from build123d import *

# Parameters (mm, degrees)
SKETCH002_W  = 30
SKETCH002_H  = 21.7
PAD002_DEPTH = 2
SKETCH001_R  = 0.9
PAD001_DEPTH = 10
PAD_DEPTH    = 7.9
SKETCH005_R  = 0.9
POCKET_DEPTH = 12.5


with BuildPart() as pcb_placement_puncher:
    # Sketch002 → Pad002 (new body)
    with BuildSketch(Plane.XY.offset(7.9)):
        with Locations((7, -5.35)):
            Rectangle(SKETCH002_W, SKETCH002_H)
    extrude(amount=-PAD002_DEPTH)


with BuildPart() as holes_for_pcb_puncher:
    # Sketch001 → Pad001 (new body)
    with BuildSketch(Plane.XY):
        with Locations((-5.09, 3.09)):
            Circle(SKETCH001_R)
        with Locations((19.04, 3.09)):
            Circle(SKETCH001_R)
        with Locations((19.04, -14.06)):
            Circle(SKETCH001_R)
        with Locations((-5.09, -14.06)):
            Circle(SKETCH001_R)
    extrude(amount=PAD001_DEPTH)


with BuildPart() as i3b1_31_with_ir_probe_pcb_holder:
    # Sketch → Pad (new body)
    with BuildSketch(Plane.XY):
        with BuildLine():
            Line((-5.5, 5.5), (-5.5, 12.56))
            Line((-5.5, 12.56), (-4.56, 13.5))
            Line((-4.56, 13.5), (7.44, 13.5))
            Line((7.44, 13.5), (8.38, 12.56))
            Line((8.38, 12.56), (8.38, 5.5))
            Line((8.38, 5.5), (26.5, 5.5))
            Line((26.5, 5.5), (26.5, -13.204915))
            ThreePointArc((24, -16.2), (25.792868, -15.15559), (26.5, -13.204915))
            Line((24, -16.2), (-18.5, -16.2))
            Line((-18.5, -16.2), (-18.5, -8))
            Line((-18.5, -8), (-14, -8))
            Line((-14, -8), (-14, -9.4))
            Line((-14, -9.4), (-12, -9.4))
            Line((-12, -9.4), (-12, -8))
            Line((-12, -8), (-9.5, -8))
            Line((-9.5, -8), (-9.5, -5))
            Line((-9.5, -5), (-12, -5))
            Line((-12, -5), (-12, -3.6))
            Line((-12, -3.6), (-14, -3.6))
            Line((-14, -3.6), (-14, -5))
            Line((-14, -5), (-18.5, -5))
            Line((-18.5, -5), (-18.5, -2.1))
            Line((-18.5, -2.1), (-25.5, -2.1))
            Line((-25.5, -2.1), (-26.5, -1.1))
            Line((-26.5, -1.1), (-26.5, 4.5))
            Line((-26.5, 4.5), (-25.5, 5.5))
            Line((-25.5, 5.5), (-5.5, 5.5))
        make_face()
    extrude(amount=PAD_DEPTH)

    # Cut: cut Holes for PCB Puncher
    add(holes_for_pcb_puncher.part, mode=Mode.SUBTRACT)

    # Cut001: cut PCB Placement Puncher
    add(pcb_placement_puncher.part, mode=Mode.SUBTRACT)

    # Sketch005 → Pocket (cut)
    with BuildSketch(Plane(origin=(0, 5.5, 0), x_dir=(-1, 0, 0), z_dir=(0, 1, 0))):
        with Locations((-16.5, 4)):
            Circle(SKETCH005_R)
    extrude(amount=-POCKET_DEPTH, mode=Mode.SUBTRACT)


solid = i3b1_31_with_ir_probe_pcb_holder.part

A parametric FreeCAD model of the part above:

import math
import FreeCAD as App
import Part
import Sketcher

V = App.Vector

doc = App.newDocument("Part")
params = doc.addObject("Spreadsheet::Sheet", "Params")
for row, (alias, value) in enumerate([
    ("sketch1_width", "30 mm"),
    ("sketch1_height", "21.7 mm"),
    ("pad1_length", "2 mm"),
    ("sketch2_diameter", "1.8 mm"),
    ("pad2_length", "10 mm"),
    ("sketch3_width", "20 mm"),
    ("sketch3_width2", "7 mm"),
    ("sketch3_width3", "2 mm"),
    ("sketch3_width4", "12 mm"),
    ("sketch3_height", "3 mm"),
    ("pad3_length", "7.9 mm"),
    ("sketch4_diameter", "1.8 mm"),
    ("pocket1_length", "12.5 mm"),
], start=1):
    params.set(f"A{row}", alias)
    params.set(f"B{row}", "=" + value)
    params.setAlias(f"B{row}", alias)

body = doc.addObject("PartDesign::Body", "Body")

sketch1 = doc.addObject("Sketcher::SketchObject", "Sketch")
body.addObject(sketch1)
sketch1.AttachmentSupport = (doc.XY_Plane, [""])
sketch1.MapMode = "FlatFace"
sketch1.AttachmentOffset = App.Placement(V(0, 0, 7.9), App.Rotation())
sketch1.addGeometry([
    Part.LineSegment(V(-8, 6, 0), V(-8, -16, 0)),
    Part.LineSegment(V(-8, -16, 0), V(22, -16, 0)),
    Part.LineSegment(V(22, -16, 0), V(22, 6, 0)),
    Part.LineSegment(V(22, 6, 0), V(-8, 6, 0)),
], False)
sketch1.addConstraint([
    Sketcher.Constraint("Coincident", 0, 2, 1, 1),
    Sketcher.Constraint("Coincident", 1, 2, 2, 1),
    Sketcher.Constraint("Coincident", 2, 2, 3, 1),
    Sketcher.Constraint("Coincident", 3, 2, 0, 1),
    Sketcher.Constraint("Vertical", 0),
    Sketcher.Constraint("Horizontal", 1),
    Sketcher.Constraint("Vertical", 2),
    Sketcher.Constraint("Horizontal", 3),
    Sketcher.Constraint("DistanceX", 1, 1, 1, 2, 30.0),
    Sketcher.Constraint("DistanceY", 0, 2, 0, 1, 21.7),
    Sketcher.Constraint("DistanceX", 0, 2, -1, 1, 8.0),
    Sketcher.Constraint("DistanceY", 0, 2, -1, 1, 16.2),
])
sketch1.setExpression("Constraints[8]", "Params.sketch1_width")
sketch1.setExpression("Constraints[9]", "Params.sketch1_height")
pad1 = doc.addObject("PartDesign::Pad", "Pad")
body.addObject(pad1)
pad1.Profile = sketch1
pad1.setExpression("Length", "Params.pad1_length")
pad1.Reversed = True
body2 = doc.addObject("PartDesign::Body", "Body001")
body2.AllowCompound = True

sketch2 = doc.addObject("Sketcher::SketchObject", "Sketch001")
body2.addObject(sketch2)
sketch2.AttachmentSupport = (doc.getObject("XY_Plane001"), [""])
sketch2.MapMode = "FlatFace"
sketch2.addGeometry([
    Part.Circle(V(-5.1, 3.1, 0), V(0, 0, 1), 0.9),
    Part.Circle(V(19, 3.1, 0), V(0, 0, 1), 0.9),
    Part.Circle(V(19, -14.1, 0), V(0, 0, 1), 0.9),
    Part.Circle(V(-5.1, -14.1, 0), V(0, 0, 1), 0.9),
], False)
sketch2.addConstraint([
    Sketcher.Constraint("Equal", 0, 1),
    Sketcher.Constraint("Equal", 1, 2),
    Sketcher.Constraint("Equal", 2, 3),
    Sketcher.Constraint("Horizontal", 0, 3, 1, 3),
    Sketcher.Constraint("Horizontal", 2, 3, 3, 3),
    Sketcher.Constraint("Vertical", 1, 3, 2, 3),
    Sketcher.Constraint("Vertical", 0, 3, 3, 3),
    Sketcher.Constraint("Diameter", 0, 1.8),
    Sketcher.Constraint("DistanceX", 0, 3, -1, 1, 5.09),
    Sketcher.Constraint("DistanceY", -1, 1, 0, 3, 3.09),
    Sketcher.Constraint("DistanceX", -1, 1, 1, 3, 19.04),
    Sketcher.Constraint("DistanceY", 2, 3, -1, 1, 14.06),
])
sketch2.setExpression("Constraints[7]", "Params.sketch2_diameter")
pad2 = doc.addObject("PartDesign::Pad", "Pad001")
body2.addObject(pad2)
pad2.Profile = sketch2
pad2.setExpression("Length", "Params.pad2_length")
body3 = doc.addObject("PartDesign::Body", "Body002")

sketch3 = doc.addObject("Sketcher::SketchObject", "Sketch002")
body3.addObject(sketch3)
sketch3.AttachmentSupport = (doc.getObject("XY_Plane002"), [""])
sketch3.MapMode = "FlatFace"
sketch3.addGeometry([
    Part.LineSegment(V(-5.5, 12.6, 0), V(-5.5, 5.5, 0)),
    Part.LineSegment(V(-5.5, 5.5, 0), V(-25.5, 5.5, 0)),
    Part.LineSegment(V(-25.5, 5.5, 0), V(-26.5, 4.5, 0)),
    Part.LineSegment(V(-26.5, 4.5, 0), V(-26.5, -1.1, 0)),
    Part.LineSegment(V(-26.5, -1.1, 0), V(-25.5, -2.1, 0)),
    Part.LineSegment(V(-25.5, -2.1, 0), V(-18.5, -2.1, 0)),
    Part.LineSegment(V(-18.5, -2.1, 0), V(-18.5, -5, 0)),
    Part.LineSegment(V(-18.5, -5, 0), V(-14, -5, 0)),
    Part.LineSegment(V(-14, -5, 0), V(-14, -3.6, 0)),
    Part.LineSegment(V(-14, -3.6, 0), V(-12, -3.6, 0)),
    Part.LineSegment(V(-12, -3.6, 0), V(-12, -5, 0)),
    Part.LineSegment(V(-12, -5, 0), V(-9.5, -5, 0)),
    Part.LineSegment(V(-9.5, -5, 0), V(-9.5, -8, 0)),
    Part.LineSegment(V(-9.5, -8, 0), V(-12, -8, 0)),
    Part.LineSegment(V(-12, -8, 0), V(-12, -9.4, 0)),
    Part.LineSegment(V(-12, -9.4, 0), V(-14, -9.4, 0)),
    Part.LineSegment(V(-14, -9.4, 0), V(-14, -8, 0)),
    Part.LineSegment(V(-14, -8, 0), V(-18.5, -8, 0)),
    Part.LineSegment(V(-18.5, -8, 0), V(-18.5, -16.2, 0)),
    Part.LineSegment(V(-18.5, -16.2, 0), V(24, -16.2, 0)),
    Part.ArcOfCircle(Part.Circle(V(23.5, -13.2, 0), V(0, 0, 1), 3), math.radians(-80), math.radians(0)),
    Part.LineSegment(V(26.5, -13.2, 0), V(26.5, 5.5, 0)),
    Part.LineSegment(V(26.5, 5.5, 0), V(8.4, 5.5, 0)),
    Part.LineSegment(V(8.4, 5.5, 0), V(8.4, 12.6, 0)),
    Part.LineSegment(V(8.4, 12.6, 0), V(7.4, 13.5, 0)),
    Part.LineSegment(V(7.4, 13.5, 0), V(-4.6, 13.5, 0)),
    Part.LineSegment(V(-4.6, 13.5, 0), V(-5.5, 12.6, 0)),
], False)
sketch3.addConstraint([
    Sketcher.Constraint("Coincident", 0, 2, 1, 1),
    Sketcher.Constraint("Coincident", 1, 2, 2, 1),
    Sketcher.Constraint("Coincident", 2, 2, 3, 1),
    Sketcher.Constraint("Coincident", 3, 2, 4, 1),
    Sketcher.Constraint("Coincident", 4, 2, 5, 1),
    Sketcher.Constraint("Coincident", 5, 2, 6, 1),
    Sketcher.Constraint("Coincident", 6, 2, 7, 1),
    Sketcher.Constraint("Coincident", 7, 2, 8, 1),
    Sketcher.Constraint("Coincident", 8, 2, 9, 1),
    Sketcher.Constraint("Coincident", 9, 2, 10, 1),
    Sketcher.Constraint("Coincident", 10, 2, 11, 1),
    Sketcher.Constraint("Coincident", 11, 2, 12, 1),
    Sketcher.Constraint("Coincident", 12, 2, 13, 1),
    Sketcher.Constraint("Coincident", 13, 2, 14, 1),
    Sketcher.Constraint("Coincident", 14, 2, 15, 1),
    Sketcher.Constraint("Coincident", 15, 2, 16, 1),
    Sketcher.Constraint("Coincident", 16, 2, 17, 1),
    Sketcher.Constraint("Coincident", 17, 2, 18, 1),
    Sketcher.Constraint("Coincident", 18, 2, 19, 1),
    Sketcher.Constraint("Coincident", 19, 2, 20, 1),
    Sketcher.Constraint("Tangent", 20, 2, 21, 1),
    Sketcher.Constraint("Coincident", 21, 2, 22, 1),
    Sketcher.Constraint("Coincident", 22, 2, 23, 1),
    Sketcher.Constraint("Coincident", 23, 2, 24, 1),
    Sketcher.Constraint("Coincident", 24, 2, 25, 1),
    Sketcher.Constraint("Coincident", 25, 2, 26, 1),
    Sketcher.Constraint("Coincident", 26, 2, 0, 1),
    Sketcher.Constraint("Vertical", 0),
    Sketcher.Constraint("Horizontal", 1),
    Sketcher.Constraint("Vertical", 3),
    Sketcher.Constraint("Horizontal", 5),
    Sketcher.Constraint("Vertical", 6),
    Sketcher.Constraint("Horizontal", 7),
    Sketcher.Constraint("Vertical", 8),
    Sketcher.Constraint("Horizontal", 9),
    Sketcher.Constraint("Vertical", 10),
    Sketcher.Constraint("Horizontal", 11),
    Sketcher.Constraint("Vertical", 12),
    Sketcher.Constraint("Horizontal", 13),
    Sketcher.Constraint("Vertical", 14),
    Sketcher.Constraint("Horizontal", 15),
    Sketcher.Constraint("Vertical", 16),
    Sketcher.Constraint("Horizontal", 17),
    Sketcher.Constraint("Vertical", 18),
    Sketcher.Constraint("Horizontal", 19),
    Sketcher.Constraint("Vertical", 21),
    Sketcher.Constraint("Horizontal", 22),
    Sketcher.Constraint("Vertical", 23),
    Sketcher.Constraint("Horizontal", 25),
    Sketcher.Constraint("Perpendicular", 2, 4),
    Sketcher.Constraint("Parallel", 4, 24),
    Sketcher.Constraint("Perpendicular", 24, 26),
    Sketcher.Constraint("Horizontal", 7, 2, 10, 2),
    Sketcher.Constraint("Horizontal", 13, 2, 16, 2),
    Sketcher.Constraint("Horizontal", 1, 2, 21, 2),
    Sketcher.Constraint("Horizontal", 23, 2, 26, 2),
    Sketcher.Constraint("Vertical", 1, 2, 4, 2),
    Sketcher.Constraint("Vertical", 10, 2, 13, 2),
    Sketcher.Constraint("Vertical", 8, 2, 15, 2),
    Sketcher.Constraint("Vertical", 6, 2, 17, 2),
    Sketcher.Constraint("Equal", 10, 14),
    Sketcher.Constraint("Equal", 2, 4),
    Sketcher.Constraint("DistanceX", 1, 2, 1, 1, 20.0),
    Sketcher.Constraint("DistanceX", 5, 1, 5, 2, 7.0),
    Sketcher.Constraint("DistanceX", 9, 1, 9, 2, 2.0),
    Sketcher.Constraint("DistanceX", 25, 2, 25, 1, 12.0),
    Sketcher.Constraint("DistanceY", 12, 2, 12, 1, 3.0),
    Sketcher.Constraint("DistanceX", 7, 1, 7, 2, 4.5),
    Sketcher.Constraint("DistanceX", 11, 1, 11, 2, 2.5),
    Sketcher.Constraint("DistanceX", 19, 1, 19, 2, 42.5),
    Sketcher.Constraint("DistanceY", 3, 2, 3, 1, 5.6),
    Sketcher.Constraint("DistanceY", 6, 2, 6, 1, 2.9),
    Sketcher.Constraint("DistanceY", 8, 1, 8, 2, 1.4),
    Sketcher.Constraint("DistanceY", 18, 2, 18, 1, 8.2),
    Sketcher.Constraint("DistanceY", 6, 2, -1, 1, 5.0),
    Sketcher.Constraint("DistanceX", 7, 2, -1, 1, 14.0),
    Sketcher.Constraint("DistanceX", 2, 2, 1, 2, 1.0),
    Sketcher.Constraint("DistanceX", 12, 2, 20, 2, 36.0),
    Sketcher.Constraint("DistanceY", 22, 2, 24, 2, 8.0),
    Sketcher.Constraint("DistanceX", 22, 2, 22, 1, 18.12),
    Sketcher.Constraint("Radius", 20, 3.044108),
])
sketch3.setExpression("Constraints[62]", "Params.sketch3_width")
sketch3.setExpression("Constraints[63]", "Params.sketch3_width2")
sketch3.setExpression("Constraints[64]", "Params.sketch3_width3")
sketch3.setExpression("Constraints[65]", "Params.sketch3_width4")
sketch3.setExpression("Constraints[66]", "Params.sketch3_height")
pad3 = doc.addObject("PartDesign::Pad", "Pad002")
body3.addObject(pad3)
pad3.Profile = sketch3
pad3.setExpression("Length", "Params.pad3_length")
doc.recompute()

boolean = doc.addObject("PartDesign::Boolean", "Boolean")
body3.addObject(boolean)
boolean.Type = "Cut"
boolean.addObjects([body2])
doc.recompute()

boolean2 = doc.addObject("PartDesign::Boolean", "Boolean001")
body3.addObject(boolean2)
boolean2.Type = "Cut"
boolean2.addObjects([body])

sketch4 = doc.addObject("Sketcher::SketchObject", "Sketch003")
body3.addObject(sketch4)
sketch4.AttachmentSupport = (doc.getObject("XZ_Plane002"), [""])
sketch4.MapMode = "FlatFace"
sketch4.AttachmentOffset = App.Placement(V(0, 0, -5.5), App.Rotation())
sketch4.addGeometry(Part.Circle(V(16.5, 4, 0), V(0, 0, 1), 0.9), False)
sketch4.addConstraint([
    Sketcher.Constraint("Diameter", 0, 1.8),
    Sketcher.Constraint("DistanceY", -1, 1, 0, 3, 4.0),
    Sketcher.Constraint("DistanceX", -1, 1, 0, 3, 16.5),
])
sketch4.setExpression("Constraints[0]", "Params.sketch4_diameter")
pocket1 = doc.addObject("PartDesign::Pocket", "Pocket")
body3.addObject(pocket1)
pocket1.Profile = sketch4
pocket1.setExpression("Length", "Params.pocket1_length")
pocket1.Reversed = True

doc.recompute()
